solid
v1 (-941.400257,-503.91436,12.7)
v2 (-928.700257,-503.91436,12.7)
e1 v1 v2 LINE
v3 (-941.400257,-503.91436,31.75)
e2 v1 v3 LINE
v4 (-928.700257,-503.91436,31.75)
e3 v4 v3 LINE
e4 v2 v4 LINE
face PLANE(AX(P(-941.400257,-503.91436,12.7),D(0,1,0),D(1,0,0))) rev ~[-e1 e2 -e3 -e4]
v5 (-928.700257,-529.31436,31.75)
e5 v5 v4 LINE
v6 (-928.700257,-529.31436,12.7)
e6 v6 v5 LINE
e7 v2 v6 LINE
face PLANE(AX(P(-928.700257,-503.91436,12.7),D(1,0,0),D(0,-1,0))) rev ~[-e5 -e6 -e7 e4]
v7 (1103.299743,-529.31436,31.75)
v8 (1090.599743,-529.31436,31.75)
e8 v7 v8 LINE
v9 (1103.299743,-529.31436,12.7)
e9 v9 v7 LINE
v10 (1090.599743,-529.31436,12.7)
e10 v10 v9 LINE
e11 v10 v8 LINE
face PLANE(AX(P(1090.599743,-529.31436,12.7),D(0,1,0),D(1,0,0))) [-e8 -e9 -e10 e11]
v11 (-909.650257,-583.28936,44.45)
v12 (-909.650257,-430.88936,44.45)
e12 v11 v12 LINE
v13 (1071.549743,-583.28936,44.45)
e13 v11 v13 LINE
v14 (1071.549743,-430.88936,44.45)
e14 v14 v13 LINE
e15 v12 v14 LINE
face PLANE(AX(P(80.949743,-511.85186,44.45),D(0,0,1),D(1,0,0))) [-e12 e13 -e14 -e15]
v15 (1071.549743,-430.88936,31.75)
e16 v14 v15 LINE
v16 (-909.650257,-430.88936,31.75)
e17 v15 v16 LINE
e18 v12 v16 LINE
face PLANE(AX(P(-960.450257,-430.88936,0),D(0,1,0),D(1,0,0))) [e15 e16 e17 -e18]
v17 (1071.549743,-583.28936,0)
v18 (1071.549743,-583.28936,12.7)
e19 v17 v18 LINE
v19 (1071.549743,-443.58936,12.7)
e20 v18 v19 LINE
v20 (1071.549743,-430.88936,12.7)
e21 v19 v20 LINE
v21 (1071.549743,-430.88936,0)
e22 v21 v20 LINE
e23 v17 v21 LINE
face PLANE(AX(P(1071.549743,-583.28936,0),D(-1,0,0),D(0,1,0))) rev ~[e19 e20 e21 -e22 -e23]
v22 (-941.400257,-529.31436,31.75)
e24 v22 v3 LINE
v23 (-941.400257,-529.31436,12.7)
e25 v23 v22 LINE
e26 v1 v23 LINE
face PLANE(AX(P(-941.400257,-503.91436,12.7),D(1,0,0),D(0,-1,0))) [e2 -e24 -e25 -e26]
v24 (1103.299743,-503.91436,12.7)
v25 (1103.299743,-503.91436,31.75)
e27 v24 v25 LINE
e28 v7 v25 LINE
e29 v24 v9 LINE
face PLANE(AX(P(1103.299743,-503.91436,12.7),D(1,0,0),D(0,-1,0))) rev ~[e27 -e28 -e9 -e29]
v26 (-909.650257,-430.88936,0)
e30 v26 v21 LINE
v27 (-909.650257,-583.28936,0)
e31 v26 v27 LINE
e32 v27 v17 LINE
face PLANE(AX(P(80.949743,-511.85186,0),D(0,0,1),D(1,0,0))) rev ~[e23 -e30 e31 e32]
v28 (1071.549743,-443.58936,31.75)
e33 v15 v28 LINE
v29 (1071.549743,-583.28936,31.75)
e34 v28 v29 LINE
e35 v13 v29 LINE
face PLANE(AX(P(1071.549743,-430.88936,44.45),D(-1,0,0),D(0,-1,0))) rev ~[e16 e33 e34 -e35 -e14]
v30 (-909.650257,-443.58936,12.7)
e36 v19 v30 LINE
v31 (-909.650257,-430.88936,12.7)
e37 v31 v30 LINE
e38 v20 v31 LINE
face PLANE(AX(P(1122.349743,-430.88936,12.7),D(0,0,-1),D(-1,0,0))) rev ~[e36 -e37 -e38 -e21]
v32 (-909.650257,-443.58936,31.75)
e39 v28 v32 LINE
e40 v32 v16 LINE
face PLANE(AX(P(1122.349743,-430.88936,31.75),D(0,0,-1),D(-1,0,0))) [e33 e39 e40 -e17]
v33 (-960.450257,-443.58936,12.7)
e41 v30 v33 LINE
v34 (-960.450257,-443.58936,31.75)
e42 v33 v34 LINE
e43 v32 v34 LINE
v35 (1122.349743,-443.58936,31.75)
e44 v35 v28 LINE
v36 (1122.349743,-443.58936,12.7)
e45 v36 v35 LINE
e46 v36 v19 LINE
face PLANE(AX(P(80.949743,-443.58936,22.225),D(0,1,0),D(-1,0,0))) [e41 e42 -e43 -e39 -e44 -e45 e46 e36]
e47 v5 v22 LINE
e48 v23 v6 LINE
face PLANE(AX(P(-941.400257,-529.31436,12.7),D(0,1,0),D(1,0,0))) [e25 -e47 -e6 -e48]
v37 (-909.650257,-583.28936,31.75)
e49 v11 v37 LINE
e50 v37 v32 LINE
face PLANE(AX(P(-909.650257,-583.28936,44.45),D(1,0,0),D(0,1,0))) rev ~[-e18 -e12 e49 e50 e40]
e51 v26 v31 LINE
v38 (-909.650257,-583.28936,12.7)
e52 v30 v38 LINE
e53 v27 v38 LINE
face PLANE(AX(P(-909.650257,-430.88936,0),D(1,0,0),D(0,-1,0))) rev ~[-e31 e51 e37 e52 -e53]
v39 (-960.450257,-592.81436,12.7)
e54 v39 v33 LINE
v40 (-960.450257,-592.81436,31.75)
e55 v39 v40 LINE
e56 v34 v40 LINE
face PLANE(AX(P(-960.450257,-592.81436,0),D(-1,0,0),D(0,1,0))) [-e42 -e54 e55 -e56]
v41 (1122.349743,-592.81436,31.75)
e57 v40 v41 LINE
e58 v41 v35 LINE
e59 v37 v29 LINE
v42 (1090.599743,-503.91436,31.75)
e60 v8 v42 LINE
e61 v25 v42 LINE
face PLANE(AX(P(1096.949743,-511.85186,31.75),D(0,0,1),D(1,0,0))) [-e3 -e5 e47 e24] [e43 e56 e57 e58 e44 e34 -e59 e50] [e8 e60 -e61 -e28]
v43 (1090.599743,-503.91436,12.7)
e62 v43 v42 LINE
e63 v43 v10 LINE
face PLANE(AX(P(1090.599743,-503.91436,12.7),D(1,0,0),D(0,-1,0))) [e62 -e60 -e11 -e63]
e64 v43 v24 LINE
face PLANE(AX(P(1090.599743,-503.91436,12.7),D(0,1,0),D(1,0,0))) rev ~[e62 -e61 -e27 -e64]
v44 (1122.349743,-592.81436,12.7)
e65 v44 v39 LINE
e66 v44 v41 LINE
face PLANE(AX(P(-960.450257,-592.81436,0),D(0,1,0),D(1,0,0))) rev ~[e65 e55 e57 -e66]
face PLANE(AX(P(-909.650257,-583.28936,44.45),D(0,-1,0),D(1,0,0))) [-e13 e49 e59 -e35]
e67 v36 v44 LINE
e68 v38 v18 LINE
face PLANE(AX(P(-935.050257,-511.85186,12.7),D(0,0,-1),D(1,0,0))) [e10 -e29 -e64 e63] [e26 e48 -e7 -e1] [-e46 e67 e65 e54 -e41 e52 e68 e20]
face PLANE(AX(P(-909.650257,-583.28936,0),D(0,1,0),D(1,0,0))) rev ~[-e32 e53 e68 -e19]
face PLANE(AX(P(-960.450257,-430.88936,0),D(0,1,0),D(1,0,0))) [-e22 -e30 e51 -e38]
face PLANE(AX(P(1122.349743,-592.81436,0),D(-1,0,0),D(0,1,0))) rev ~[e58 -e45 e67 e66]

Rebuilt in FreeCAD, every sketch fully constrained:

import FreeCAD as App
import Part
import Sketcher
from FreeCAD import Vector
Q = App.Units.Quantity

doc = App.newDocument("Part")
body = doc.addObject("PartDesign::Body", "Body")

# Sketch on XY plane
sketch1 = doc.addObject("Sketcher::SketchObject", "Sketch")
body.addObject(sketch1)
sketch1.AttachmentSupport = (doc.XY_Plane, [""])
sketch1.MapMode = "FlatFace"
sketch1.addGeometry(Part.LineSegment(Vector(-960.450257, -430.88936, 0), Vector(-960.450257, -592.81436, 0)), False)
sketch1.addGeometry(Part.LineSegment(Vector(-960.450257, -592.81436, 0), Vector(1122.349743, -592.81436, 0)), False)
sketch1.addGeometry(Part.LineSegment(Vector(1122.349743, -592.81436, 0), Vector(1122.349743, -430.88936, 0)), False)
sketch1.addGeometry(Part.LineSegment(Vector(1122.349743, -430.88936, 0), Vector(-960.450257, -430.88936, 0)), False)
sketch1.addConstraint(Sketcher.Constraint("Coincident", 0, 2, 1, 1))
sketch1.addConstraint(Sketcher.Constraint("Coincident", 1, 2, 2, 1))
sketch1.addConstraint(Sketcher.Constraint("Coincident", 2, 2, 3, 1))
sketch1.addConstraint(Sketcher.Constraint("Coincident", 3, 2, 0, 1))
sketch1.addConstraint(Sketcher.Constraint("Vertical", 0))
sketch1.addConstraint(Sketcher.Constraint("Horizontal", 1))
sketch1.addConstraint(Sketcher.Constraint("Vertical", 2))
sketch1.addConstraint(Sketcher.Constraint("Horizontal", 3))
sketch1.addConstraint(Sketcher.Constraint("DistanceX", 1, 1, 1, 2, Q("82 in")))
sketch1.addConstraint(Sketcher.Constraint("DistanceY", 0, 2, 0, 1, Q("6.375 in")))
sketch1.addConstraint(Sketcher.Constraint("DistanceY", 0, 2, -1, 1, 592.81436))
sketch1.addConstraint(Sketcher.Constraint("DistanceX", 0, 2, -1, 1, 960.450257))
pad1 = doc.addObject("PartDesign::Pad", "Pad")
body.addObject(pad1)
pad1.Profile = sketch1
pad1.Length = Q("1.75 in")

# Sketch on XY plane
sketch2 = doc.addObject("Sketcher::SketchObject", "Sketch001")
body.addObject(sketch2)
sketch2.AttachmentSupport = (doc.XY_Plane, [""])
sketch2.MapMode = "FlatFace"
sketch2.addGeometry(Part.LineSegment(Vector(-960.450257, -592.81436, 0), Vector(-960.450257, -430.88936, 0)), False)
sketch2.addGeometry(Part.LineSegment(Vector(-960.450257, -430.88936, 0), Vector(-909.650257, -430.88936, 0)), False)
sketch2.addGeometry(Part.LineSegment(Vector(-909.650257, -430.88936, 0), Vector(-909.650257, -583.28936, 0)), False)
sketch2.addGeometry(Part.LineSegment(Vector(-909.650257, -583.28936, 0), Vector(1071.549743, -583.28936, 0)), False)
sketch2.addGeometry(Part.LineSegment(Vector(1071.549743, -583.28936, 0), Vector(1071.549743, -430.88936, 0)), False)
sketch2.addGeometry(Part.LineSegment(Vector(1071.549743, -430.88936, 0), Vector(1122.349743, -430.88936, 0)), False)
sketch2.addGeometry(Part.LineSegment(Vector(1122.349743, -430.88936, 0), Vector(1122.349743, -592.81436, 0)), False)
sketch2.addGeometry(Part.LineSegment(Vector(1122.349743, -592.81436, 0), Vector(-960.450257, -592.81436, 0)), False)
sketch2.addConstraint(Sketcher.Constraint("Coincident", 0, 2, 1, 1))
sketch2.addConstraint(Sketcher.Constraint("Coincident", 1, 2, 2, 1))
sketch2.addConstraint(Sketcher.Constraint("Coincident", 2, 2, 3, 1))
sketch2.addConstraint(Sketcher.Constraint("Coincident", 3, 2, 4, 1))
sketch2.addConstraint(Sketcher.Constraint("Coincident", 4, 2, 5, 1))
sketch2.addConstraint(Sketcher.Constraint("Coincident", 5, 2, 6, 1))
sketch2.addConstraint(Sketcher.Constraint("Coincident", 6, 2, 7, 1))
sketch2.addConstraint(Sketcher.Constraint("Coincident", 7, 2, 0, 1))
sketch2.addConstraint(Sketcher.Constraint("Vertical", 0))
sketch2.addConstraint(Sketcher.Constraint("Horizontal", 1))
sketch2.addConstraint(Sketcher.Constraint("Vertical", 2))
sketch2.addConstraint(Sketcher.Constraint("Horizontal", 3))
sketch2.addConstraint(Sketcher.Constraint("Vertical", 4))
sketch2.addConstraint(Sketcher.Constraint("Horizontal", 5))
sketch2.addConstraint(Sketcher.Constraint("Vertical", 6))
sketch2.addConstraint(Sketcher.Constraint("Horizontal", 7))
sketch2.addConstraint(Sketcher.Constraint("Horizontal", 1, 2, 4, 2))
sketch2.addConstraint(Sketcher.Constraint("Equal", 1, 5))
sketch2.addConstraint(Sketcher.Constraint("DistanceX", 1, 1, 1, 2, Q("2 in")))
sketch2.addConstraint(Sketcher.Constraint("DistanceX", 3, 1, 3, 2, Q("78 in")))
sketch2.addConstraint(Sketcher.Constraint("DistanceY", 2, 2, 2, 1, Q("6 in")))
sketch2.addConstraint(Sketcher.Constraint("DistanceY", 0, 1, 0, 2, Q("6.375 in")))
sketch2.addConstraint(Sketcher.Constraint("DistanceY", 0, 2, -1, 1, 430.88936))
sketch2.addConstraint(Sketcher.Constraint("DistanceX", 0, 2, -1, 1, 960.450257))
pocket1 = doc.addObject("PartDesign::Pocket", "Pocket")
body.addObject(pocket1)
pocket1.Profile = sketch2
pocket1.Length = Q("0.5 in")
pocket1.Reversed = True

# Sketch on XY plane
sketch3 = doc.addObject("Sketcher::SketchObject", "Sketch002")
body.addObject(sketch3)
sketch3.AttachmentSupport = (doc.XY_Plane, [""])
sketch3.MapMode = "FlatFace"
sketch3.AttachmentOffset = App.Placement(Vector(0, 0, 1.75 * 25.4), App.Rotation())
sketch3.addGeometry(Part.LineSegment(Vector(1122.349743, -430.88936, 0), Vector(1071.549743, -430.88936, 0)), False)
sketch3.addGeometry(Part.LineSegment(Vector(1071.549743, -430.88936, 0), Vector(1071.549743, -583.28936, 0)), False)
sketch3.addGeometry(Part.LineSegment(Vector(1071.549743, -583.28936, 0), Vector(-909.650257, -583.28936, 0)), False)
sketch3.addGeometry(Part.LineSegment(Vector(-909.650257, -583.28936, 0), Vector(-909.650257, -430.88936, 0)), False)
sketch3.addGeometry(Part.LineSegment(Vector(-909.650257, -430.88936, 0), Vector(-960.450257, -430.88936, 0)), False)
sketch3.addGeometry(Part.LineSegment(Vector(-960.450257, -430.88936, 0), Vector(-960.450257, -592.81436, 0)), False)
sketch3.addGeometry(Part.LineSegment(Vector(-960.450257, -592.81436, 0), Vector(1122.349743, -592.81436, 0)), False)
sketch3.addGeometry(Part.LineSegment(Vector(1122.349743, -592.81436, 0), Vector(1122.349743, -430.88936, 0)), False)
sketch3.addConstraint(Sketcher.Constraint("Coincident", 0, 2, 1, 1))
sketch3.addConstraint(Sketcher.Constraint("Coincident", 1, 2, 2, 1))
sketch3.addConstraint(Sketcher.Constraint("Coincident", 2, 2, 3, 1))
sketch3.addConstraint(Sketcher.Constraint("Coincident", 3, 2, 4, 1))
sketch3.addConstraint(Sketcher.Constraint("Coincident", 4, 2, 5, 1))
sketch3.addConstraint(Sketcher.Constraint("Coincident", 5, 2, 6, 1))
sketch3.addConstraint(Sketcher.Constraint("Coincident", 6, 2, 7, 1))
sketch3.addConstraint(Sketcher.Constraint("Coincident", 7, 2, 0, 1))
sketch3.addConstraint(Sketcher.Constraint("Horizontal", 0))
sketch3.addConstraint(Sketcher.Constraint("Vertical", 1))
sketch3.addConstraint(Sketcher.Constraint("Horizontal", 2))
sketch3.addConstraint(Sketcher.Constraint("Vertical", 3))
sketch3.addConstraint(Sketcher.Constraint("Horizontal", 4))
sketch3.addConstraint(Sketcher.Constraint("Vertical", 5))
sketch3.addConstraint(Sketcher.Constraint("Horizontal", 6))
sketch3.addConstraint(Sketcher.Constraint("Vertical", 7))
sketch3.addConstraint(Sketcher.Constraint("Horizontal", 0, 2, 3, 2))
sketch3.addConstraint(Sketcher.Constraint("Equal", 0, 4))
sketch3.addConstraint(Sketcher.Constraint("DistanceX", 0, 2, 0, 1, Q("2 in")))
sketch3.addConstraint(Sketcher.Constraint("DistanceX", 2, 2, 2, 1, Q("78 in")))
sketch3.addConstraint(Sketcher.Constraint("DistanceY", 1, 2, 1, 1, Q("6 in")))
sketch3.addConstraint(Sketcher.Constraint("DistanceY", 5, 2, 5, 1, Q("6.375 in")))
sketch3.addConstraint(Sketcher.Constraint("DistanceY", 0, 2, -1, 1, 430.88936))
sketch3.addConstraint(Sketcher.Constraint("DistanceX", -1, 1, 0, 2, 1071.549743))
pocket2 = doc.addObject("PartDesign::Pocket", "Pocket001")
body.addObject(pocket2)
pocket2.Profile = sketch3
pocket2.Length = Q("0.5 in")

# Sketch on XZ plane
sketch4 = doc.addObject("Sketcher::SketchObject", "Sketch003")
body.addObject(sketch4)
sketch4.AttachmentSupport = (doc.XZ_Plane, [""])
sketch4.MapMode = "FlatFace"
sketch4.AttachmentOffset = App.Placement(Vector(0, 0, 430.88936), App.Rotation())
sketch4.addGeometry(Part.LineSegment(Vector(1122.349743, 31.75, 0), Vector(1122.349743, 12.7, 0)), False)
sketch4.addGeometry(Part.LineSegment(Vector(1122.349743, 12.7, 0), Vector(-960.450257, 12.7, 0)), False)
sketch4.addGeometry(Part.LineSegment(Vector(-960.450257, 12.7, 0), Vector(-960.450257, 31.75, 0)), False)
sketch4.addGeometry(Part.LineSegment(Vector(-960.450257, 31.75, 0), Vector(1122.349743, 31.75, 0)), False)
sketch4.addConstraint(Sketcher.Constraint("Coincident", 0, 2, 1, 1))
sketch4.addConstraint(Sketcher.Constraint("Coincident", 1, 2, 2, 1))
sketch4.addConstraint(Sketcher.Constraint("Coincident", 2, 2, 3, 1))
sketch4.addConstraint(Sketcher.Constraint("Coincident", 3, 2, 0, 1))
sketch4.addConstraint(Sketcher.Constraint("Vertical", 0))
sketch4.addConstraint(Sketcher.Constraint("Horizontal", 1))
sketch4.addConstraint(Sketcher.Constraint("Vertical", 2))
sketch4.addConstraint(Sketcher.Constraint("Horizontal", 3))
sketch4.addConstraint(Sketcher.Constraint("DistanceX", 1, 2, 1, 1, Q("82 in")))
sketch4.addConstraint(Sketcher.Constraint("DistanceY", 0, 2, 0, 1, Q("0.75 in")))
sketch4.addConstraint(Sketcher.Constraint("DistanceY", -1, 1, 0, 2, Q("0.5 in")))
sketch4.addConstraint(Sketcher.Constraint("DistanceX", -1, 1, 0, 2, 1122.349743))
pocket3 = doc.addObject("PartDesign::Pocket", "Pocket002")
body.addObject(pocket3)
pocket3.Profile = sketch4
pocket3.Length = Q("0.5 in")
pocket3.Reversed = True

# Sketch on XY plane
sketch5 = doc.addObject("Sketcher::SketchObject", "Sketch004")
body.addObject(sketch5)
sketch5.AttachmentSupport = (doc.XY_Plane, [""])
sketch5.MapMode = "FlatFace"
sketch5.AttachmentOffset = App.Placement(Vector(0, 0, 0.5 * 25.4), App.Rotation())
sketch5.addGeometry(Part.LineSegment(Vector(-941.400257, -529.31436, 0), Vector(-941.400257, -503.91436, 0)), False)
sketch5.addGeometry(Part.LineSegment(Vector(-941.400257, -503.91436, 0), Vector(-928.700257, -503.91436, 0)), False)
sketch5.addGeometry(Part.LineSegment(Vector(-928.700257, -503.91436, 0), Vector(-928.700257, -529.31436, 0)), False)
sketch5.addGeometry(Part.LineSegment(Vector(-928.700257, -529.31436, 0), Vector(-941.400257, -529.31436, 0)), False)
sketch5.addGeometry(Part.LineSegment(Vector(1090.599743, -529.31436, 0), Vector(1090.599743, -503.91436, 0)), False)
sketch5.addGeometry(Part.LineSegment(Vector(1090.599743, -503.91436, 0), Vector(1103.299743, -503.91436, 0)), False)
sketch5.addGeometry(Part.LineSegment(Vector(1103.299743, -503.91436, 0), Vector(1103.299743, -529.31436, 0)), False)
sketch5.addGeometry(Part.LineSegment(Vector(1103.299743, -529.31436, 0), Vector(1090.599743, -529.31436, 0)), False)
sketch5.addConstraint(Sketcher.Constraint("Coincident", 0, 2, 1, 1))
sketch5.addConstraint(Sketcher.Constraint("Coincident", 1, 2, 2, 1))
sketch5.addConstraint(Sketcher.Constraint("Coincident", 2, 2, 3, 1))
sketch5.addConstraint(Sketcher.Constraint("Coincident", 3, 2, 0, 1))
sketch5.addConstraint(Sketcher.Constraint("Coincident", 4, 2, 5, 1))
sketch5.addConstraint(Sketcher.Constraint("Coincident", 5, 2, 6, 1))
sketch5.addConstraint(Sketcher.Constraint("Coincident", 6, 2, 7, 1))
sketch5.addConstraint(Sketcher.Constraint("Coincident", 7, 2, 4, 1))
sketch5.addConstraint(Sketcher.Constraint("Vertical", 0))
sketch5.addConstraint(Sketcher.Constraint("Horizontal", 1))
sketch5.addConstraint(Sketcher.Constraint("Vertical", 2))
sketch5.addConstraint(Sketcher.Constraint("Horizontal", 3))
sketch5.addConstraint(Sketcher.Constraint("Vertical", 4))
sketch5.addConstraint(Sketcher.Constraint("Horizontal", 5))
sketch5.addConstraint(Sketcher.Constraint("Vertical", 6))
sketch5.addConstraint(Sketcher.Constraint("Horizontal", 7))
sketch5.addConstraint(Sketcher.Constraint("Horizontal", 1, 2, 4, 2))
sketch5.addConstraint(Sketcher.Constraint("Horizontal", 3, 2, 6, 2))
sketch5.addConstraint(Sketcher.Constraint("Equal", 3, 5))
sketch5.addConstraint(Sketcher.Constraint("DistanceY", 0, 1, 0, 2, Q("1 in")))
sketch5.addConstraint(Sketcher.Constraint("DistanceX", 1, 1, 1, 2, Q("0.5 in")))
sketch5.addConstraint(Sketcher.Constraint("DistanceX", 0, 2, 4, 2, Q("80 in")))
sketch5.addConstraint(Sketcher.Constraint("DistanceY", 0, 2, -1, 1, 503.91436))
sketch5.addConstraint(Sketcher.Constraint("DistanceX", 0, 2, -1, 1, 941.400257))
pocket4 = doc.addObject("PartDesign::Pocket", "Pocket003")
body.addObject(pocket4)
pocket4.Profile = sketch5
pocket4.Type = "ThroughAll"
pocket4.Reversed = True

doc.recompute()
